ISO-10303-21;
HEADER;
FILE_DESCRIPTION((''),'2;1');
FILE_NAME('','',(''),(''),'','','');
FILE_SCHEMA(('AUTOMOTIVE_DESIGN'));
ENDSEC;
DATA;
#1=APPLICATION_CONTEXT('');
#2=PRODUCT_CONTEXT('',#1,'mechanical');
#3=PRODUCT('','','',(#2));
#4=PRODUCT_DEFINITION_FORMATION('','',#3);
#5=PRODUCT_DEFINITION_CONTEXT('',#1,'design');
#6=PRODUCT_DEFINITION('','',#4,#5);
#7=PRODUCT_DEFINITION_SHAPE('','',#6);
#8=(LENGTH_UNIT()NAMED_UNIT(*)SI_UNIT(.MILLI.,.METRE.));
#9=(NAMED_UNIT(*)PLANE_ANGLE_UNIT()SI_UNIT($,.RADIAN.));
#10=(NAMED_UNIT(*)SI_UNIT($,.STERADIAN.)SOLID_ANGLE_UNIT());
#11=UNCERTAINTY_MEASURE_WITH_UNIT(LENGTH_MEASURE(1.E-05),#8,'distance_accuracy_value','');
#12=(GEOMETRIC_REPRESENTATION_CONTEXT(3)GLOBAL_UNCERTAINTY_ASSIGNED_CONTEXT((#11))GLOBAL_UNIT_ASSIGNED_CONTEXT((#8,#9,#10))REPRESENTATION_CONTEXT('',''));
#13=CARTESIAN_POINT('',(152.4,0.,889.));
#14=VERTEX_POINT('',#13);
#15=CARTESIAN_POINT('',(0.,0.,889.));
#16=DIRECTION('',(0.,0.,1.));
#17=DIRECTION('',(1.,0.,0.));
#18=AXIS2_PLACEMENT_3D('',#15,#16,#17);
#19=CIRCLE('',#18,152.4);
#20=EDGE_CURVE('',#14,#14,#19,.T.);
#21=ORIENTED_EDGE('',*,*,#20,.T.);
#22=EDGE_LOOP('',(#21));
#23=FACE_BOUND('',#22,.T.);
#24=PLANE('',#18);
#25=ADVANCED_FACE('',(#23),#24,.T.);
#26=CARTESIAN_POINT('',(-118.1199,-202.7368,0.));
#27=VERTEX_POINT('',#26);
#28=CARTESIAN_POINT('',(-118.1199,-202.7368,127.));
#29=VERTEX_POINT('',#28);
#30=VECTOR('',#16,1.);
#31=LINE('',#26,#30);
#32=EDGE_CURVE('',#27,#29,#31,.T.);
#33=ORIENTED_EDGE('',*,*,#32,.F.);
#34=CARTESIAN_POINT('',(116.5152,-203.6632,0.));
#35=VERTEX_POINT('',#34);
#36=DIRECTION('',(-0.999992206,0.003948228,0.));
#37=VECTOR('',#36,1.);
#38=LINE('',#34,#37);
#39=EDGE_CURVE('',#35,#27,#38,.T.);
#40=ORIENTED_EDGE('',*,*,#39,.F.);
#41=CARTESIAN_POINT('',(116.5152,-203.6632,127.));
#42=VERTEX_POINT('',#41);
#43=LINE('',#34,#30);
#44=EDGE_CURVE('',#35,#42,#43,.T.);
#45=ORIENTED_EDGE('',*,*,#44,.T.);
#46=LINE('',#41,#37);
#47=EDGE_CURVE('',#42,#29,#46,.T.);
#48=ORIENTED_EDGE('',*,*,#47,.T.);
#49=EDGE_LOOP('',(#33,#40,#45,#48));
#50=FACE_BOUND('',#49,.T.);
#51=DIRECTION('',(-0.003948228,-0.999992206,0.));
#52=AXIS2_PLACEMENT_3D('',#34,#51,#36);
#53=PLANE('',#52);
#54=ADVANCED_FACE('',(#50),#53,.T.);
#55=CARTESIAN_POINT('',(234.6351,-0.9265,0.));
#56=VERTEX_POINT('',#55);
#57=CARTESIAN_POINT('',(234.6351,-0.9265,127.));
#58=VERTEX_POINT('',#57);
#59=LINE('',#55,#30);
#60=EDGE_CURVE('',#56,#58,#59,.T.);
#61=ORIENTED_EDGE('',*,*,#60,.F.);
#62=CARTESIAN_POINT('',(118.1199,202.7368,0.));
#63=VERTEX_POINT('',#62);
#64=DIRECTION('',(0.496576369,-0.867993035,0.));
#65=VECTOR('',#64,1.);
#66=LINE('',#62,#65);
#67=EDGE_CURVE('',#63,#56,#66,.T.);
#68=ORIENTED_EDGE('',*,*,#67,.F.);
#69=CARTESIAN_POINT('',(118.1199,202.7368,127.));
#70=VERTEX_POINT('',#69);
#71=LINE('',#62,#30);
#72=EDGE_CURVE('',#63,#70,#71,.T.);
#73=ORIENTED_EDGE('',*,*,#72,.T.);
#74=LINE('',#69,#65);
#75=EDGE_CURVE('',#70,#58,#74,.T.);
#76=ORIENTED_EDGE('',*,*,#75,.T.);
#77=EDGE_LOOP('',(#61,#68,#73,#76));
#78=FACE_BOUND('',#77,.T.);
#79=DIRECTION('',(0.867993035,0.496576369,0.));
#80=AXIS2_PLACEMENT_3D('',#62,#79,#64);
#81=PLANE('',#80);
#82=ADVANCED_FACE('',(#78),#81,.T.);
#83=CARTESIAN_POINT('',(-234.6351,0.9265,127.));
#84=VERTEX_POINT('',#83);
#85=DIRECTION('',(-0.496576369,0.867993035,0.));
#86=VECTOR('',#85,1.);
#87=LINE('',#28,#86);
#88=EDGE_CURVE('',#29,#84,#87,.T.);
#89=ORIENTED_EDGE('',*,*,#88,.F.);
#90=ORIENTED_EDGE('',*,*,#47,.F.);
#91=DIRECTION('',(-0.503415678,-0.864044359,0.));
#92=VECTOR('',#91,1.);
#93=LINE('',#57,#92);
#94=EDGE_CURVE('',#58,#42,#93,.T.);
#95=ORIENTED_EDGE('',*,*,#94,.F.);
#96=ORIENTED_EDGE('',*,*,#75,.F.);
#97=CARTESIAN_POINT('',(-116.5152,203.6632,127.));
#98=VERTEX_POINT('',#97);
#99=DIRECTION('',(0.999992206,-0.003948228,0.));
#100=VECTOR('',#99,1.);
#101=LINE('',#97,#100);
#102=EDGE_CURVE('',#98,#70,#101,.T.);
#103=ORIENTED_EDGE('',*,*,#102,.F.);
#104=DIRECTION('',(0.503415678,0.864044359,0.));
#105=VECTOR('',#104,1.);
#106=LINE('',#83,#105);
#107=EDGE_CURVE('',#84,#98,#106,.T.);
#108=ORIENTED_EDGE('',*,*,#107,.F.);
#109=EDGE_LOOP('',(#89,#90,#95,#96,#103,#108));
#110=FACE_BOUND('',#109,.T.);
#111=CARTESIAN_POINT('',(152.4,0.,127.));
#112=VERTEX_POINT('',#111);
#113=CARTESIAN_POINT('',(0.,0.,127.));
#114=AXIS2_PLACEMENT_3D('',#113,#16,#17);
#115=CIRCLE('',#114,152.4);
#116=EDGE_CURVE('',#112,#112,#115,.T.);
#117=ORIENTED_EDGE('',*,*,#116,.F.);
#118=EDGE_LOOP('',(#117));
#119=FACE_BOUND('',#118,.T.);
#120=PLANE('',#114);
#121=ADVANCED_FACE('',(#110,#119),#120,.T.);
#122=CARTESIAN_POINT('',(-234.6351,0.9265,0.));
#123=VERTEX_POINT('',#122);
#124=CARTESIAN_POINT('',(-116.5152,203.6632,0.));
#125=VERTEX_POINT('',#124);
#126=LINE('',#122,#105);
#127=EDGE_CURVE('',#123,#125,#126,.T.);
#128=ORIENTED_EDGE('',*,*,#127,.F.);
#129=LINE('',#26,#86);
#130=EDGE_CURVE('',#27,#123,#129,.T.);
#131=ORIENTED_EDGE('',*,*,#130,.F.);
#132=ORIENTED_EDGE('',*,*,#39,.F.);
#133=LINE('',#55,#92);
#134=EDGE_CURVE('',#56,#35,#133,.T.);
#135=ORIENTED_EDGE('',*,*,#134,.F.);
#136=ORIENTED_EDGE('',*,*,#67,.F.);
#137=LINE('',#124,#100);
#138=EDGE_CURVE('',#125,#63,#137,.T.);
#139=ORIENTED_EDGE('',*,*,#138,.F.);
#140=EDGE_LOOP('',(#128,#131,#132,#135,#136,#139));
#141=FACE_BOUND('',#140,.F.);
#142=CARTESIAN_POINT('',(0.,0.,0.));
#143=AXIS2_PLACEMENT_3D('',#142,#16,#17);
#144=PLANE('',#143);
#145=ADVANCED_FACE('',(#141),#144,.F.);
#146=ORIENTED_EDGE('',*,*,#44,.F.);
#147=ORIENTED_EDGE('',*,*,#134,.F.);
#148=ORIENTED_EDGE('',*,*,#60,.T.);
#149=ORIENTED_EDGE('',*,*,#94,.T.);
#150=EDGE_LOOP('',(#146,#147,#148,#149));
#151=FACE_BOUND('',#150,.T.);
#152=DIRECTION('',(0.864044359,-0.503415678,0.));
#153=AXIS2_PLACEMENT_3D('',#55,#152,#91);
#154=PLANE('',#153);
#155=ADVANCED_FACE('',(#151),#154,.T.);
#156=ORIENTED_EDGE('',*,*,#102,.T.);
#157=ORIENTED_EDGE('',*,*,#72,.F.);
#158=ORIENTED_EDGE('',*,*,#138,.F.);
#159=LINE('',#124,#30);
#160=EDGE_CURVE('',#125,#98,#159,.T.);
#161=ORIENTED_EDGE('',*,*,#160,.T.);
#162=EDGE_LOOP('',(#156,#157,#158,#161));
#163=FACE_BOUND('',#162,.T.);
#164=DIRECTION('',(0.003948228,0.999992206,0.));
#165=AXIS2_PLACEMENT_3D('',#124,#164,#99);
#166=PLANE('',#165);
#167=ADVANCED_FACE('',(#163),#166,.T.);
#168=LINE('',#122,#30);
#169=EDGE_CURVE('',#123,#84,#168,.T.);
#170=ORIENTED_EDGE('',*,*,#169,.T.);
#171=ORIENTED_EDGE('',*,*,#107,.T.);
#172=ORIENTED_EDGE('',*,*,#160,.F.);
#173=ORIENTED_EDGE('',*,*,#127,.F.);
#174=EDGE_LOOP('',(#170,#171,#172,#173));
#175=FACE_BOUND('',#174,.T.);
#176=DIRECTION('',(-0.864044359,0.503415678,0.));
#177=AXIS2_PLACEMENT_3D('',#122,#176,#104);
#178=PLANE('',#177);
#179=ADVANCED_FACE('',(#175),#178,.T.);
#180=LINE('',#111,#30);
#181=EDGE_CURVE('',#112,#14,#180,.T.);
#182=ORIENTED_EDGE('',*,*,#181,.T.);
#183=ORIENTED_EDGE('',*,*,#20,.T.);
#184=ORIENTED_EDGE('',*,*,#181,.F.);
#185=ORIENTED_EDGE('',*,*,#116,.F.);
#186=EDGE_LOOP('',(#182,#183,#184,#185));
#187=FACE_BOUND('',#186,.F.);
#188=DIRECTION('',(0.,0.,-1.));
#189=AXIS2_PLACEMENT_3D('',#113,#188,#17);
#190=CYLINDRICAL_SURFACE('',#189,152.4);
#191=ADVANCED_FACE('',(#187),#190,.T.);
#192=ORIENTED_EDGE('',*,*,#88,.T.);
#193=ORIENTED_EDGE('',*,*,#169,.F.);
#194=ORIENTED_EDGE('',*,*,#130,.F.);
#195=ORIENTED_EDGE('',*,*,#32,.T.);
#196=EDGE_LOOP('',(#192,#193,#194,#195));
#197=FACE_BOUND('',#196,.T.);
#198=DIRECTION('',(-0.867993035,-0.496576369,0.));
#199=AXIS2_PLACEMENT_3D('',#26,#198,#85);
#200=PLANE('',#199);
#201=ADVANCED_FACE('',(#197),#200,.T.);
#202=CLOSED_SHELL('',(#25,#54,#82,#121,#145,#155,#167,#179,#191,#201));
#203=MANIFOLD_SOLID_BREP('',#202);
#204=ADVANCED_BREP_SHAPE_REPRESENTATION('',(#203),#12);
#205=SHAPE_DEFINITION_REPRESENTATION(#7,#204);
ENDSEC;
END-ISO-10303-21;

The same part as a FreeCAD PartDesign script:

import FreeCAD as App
import Part
import Sketcher
Q = App.Units.Quantity

doc = App.newDocument("Part")
params = doc.addObject("Spreadsheet::Sheet", "Params")
for row, (alias, value) in enumerate([
    ("pad1_length", "5 in"),
    ("sketch2_diameter", "12 in"),
    ("pad2_length", "30 in"),
], start=1):
    params.set(f"A{row}", alias)
    params.set(f"B{row}", "=" + value)
    params.setAlias(f"B{row}", alias)

body = doc.addObject("PartDesign::Body", "Body")

# Sketch on XY plane
sketch1 = doc.addObject("Sketcher::SketchObject", "Sketch")
body.addObject(sketch1)
sketch1.AttachmentSupport = (doc.XY_Plane, [""])
sketch1.MapMode = "FlatFace"
sketch1.addGeometry(Part.LineSegment(App.Vector(235, -1, 0), App.Vector(118, 203, 0)), False)
sketch1.addGeometry(Part.LineSegment(App.Vector(118, 203, 0), App.Vector(-117, 204, 0)), False)
sketch1.addGeometry(Part.LineSegment(App.Vector(-117, 204, 0), App.Vector(-235, 1, 0)), False)
sketch1.addGeometry(Part.LineSegment(App.Vector(-235, 1, 0), App.Vector(-118, -203, 0)), False)
sketch1.addGeometry(Part.LineSegment(App.Vector(-118, -203, 0), App.Vector(117, -204, 0)), False)
sketch1.addGeometry(Part.LineSegment(App.Vector(117, -204, 0), App.Vector(235, -1, 0)), False)
sketch1.addConstraint(Sketcher.Constraint("Coincident", 0, 2, 1, 1))
sketch1.addConstraint(Sketcher.Constraint("Coincident", 1, 2, 2, 1))
sketch1.addConstraint(Sketcher.Constraint("Coincident", 2, 2, 3, 1))
sketch1.addConstraint(Sketcher.Constraint("Coincident", 3, 2, 4, 1))
sketch1.addConstraint(Sketcher.Constraint("Coincident", 4, 2, 5, 1))
sketch1.addConstraint(Sketcher.Constraint("Coincident", 5, 2, 0, 1))
sketch1.addConstraint(Sketcher.Constraint("Symmetric", 0, 2, 3, 2, -1, 1))
sketch1.addConstraint(Sketcher.Constraint("Symmetric", 1, 2, 4, 2, -1, 1))
sketch1.addConstraint(Sketcher.Constraint("Symmetric", 2, 2, 5, 2, -1, 1))
sketch1.addConstraint(Sketcher.Constraint("Equal", 0, 1))
sketch1.addConstraint(Sketcher.Constraint("Equal", 1, 2))
sketch1.addConstraint(Sketcher.Constraint("DistanceY", 3, 2, 1, 2, Q("16 in")))
sketch1.addConstraint(Sketcher.Constraint("DistanceX", 2, 2, 0, 2, Q("13.888 in")))
sketch1.addConstraint(Sketcher.Constraint("DistanceX", -1, 1, 0, 2, Q("4.6504 in")))
sketch1.addConstraint(Sketcher.Constraint("DistanceY", -1, 1, 0, 2, Q("202.7368 mm")))
pad1 = doc.addObject("PartDesign::Pad", "Pad")
body.addObject(pad1)
pad1.Profile = sketch1
pad1.setExpression("Length", "Params.pad1_length")

# Sketch on XY plane
sketch2 = doc.addObject("Sketcher::SketchObject", "Sketch001")
body.addObject(sketch2)
sketch2.AttachmentSupport = (doc.XY_Plane, [""])
sketch2.MapMode = "FlatFace"
sketch2.AttachmentOffset = App.Placement(App.Vector(0, 0, 5 * 25.4), App.Rotation())
sketch2.addGeometry(Part.Circle(App.Vector(0, 0, 0), App.Vector(0, 0, 1), 152), False)
sketch2.addConstraint(Sketcher.Constraint("Coincident", 0, 3, -1, 1))
sketch2.addConstraint(Sketcher.Constraint("Diameter", 0, Q("12 in")))
sketch2.setExpression("Constraints[1]", "Params.sketch2_diameter")
pad2 = doc.addObject("PartDesign::Pad", "Pad001")
body.addObject(pad2)
pad2.Profile = sketch2
pad2.setExpression("Length", "Params.pad2_length")

doc.recompute()
